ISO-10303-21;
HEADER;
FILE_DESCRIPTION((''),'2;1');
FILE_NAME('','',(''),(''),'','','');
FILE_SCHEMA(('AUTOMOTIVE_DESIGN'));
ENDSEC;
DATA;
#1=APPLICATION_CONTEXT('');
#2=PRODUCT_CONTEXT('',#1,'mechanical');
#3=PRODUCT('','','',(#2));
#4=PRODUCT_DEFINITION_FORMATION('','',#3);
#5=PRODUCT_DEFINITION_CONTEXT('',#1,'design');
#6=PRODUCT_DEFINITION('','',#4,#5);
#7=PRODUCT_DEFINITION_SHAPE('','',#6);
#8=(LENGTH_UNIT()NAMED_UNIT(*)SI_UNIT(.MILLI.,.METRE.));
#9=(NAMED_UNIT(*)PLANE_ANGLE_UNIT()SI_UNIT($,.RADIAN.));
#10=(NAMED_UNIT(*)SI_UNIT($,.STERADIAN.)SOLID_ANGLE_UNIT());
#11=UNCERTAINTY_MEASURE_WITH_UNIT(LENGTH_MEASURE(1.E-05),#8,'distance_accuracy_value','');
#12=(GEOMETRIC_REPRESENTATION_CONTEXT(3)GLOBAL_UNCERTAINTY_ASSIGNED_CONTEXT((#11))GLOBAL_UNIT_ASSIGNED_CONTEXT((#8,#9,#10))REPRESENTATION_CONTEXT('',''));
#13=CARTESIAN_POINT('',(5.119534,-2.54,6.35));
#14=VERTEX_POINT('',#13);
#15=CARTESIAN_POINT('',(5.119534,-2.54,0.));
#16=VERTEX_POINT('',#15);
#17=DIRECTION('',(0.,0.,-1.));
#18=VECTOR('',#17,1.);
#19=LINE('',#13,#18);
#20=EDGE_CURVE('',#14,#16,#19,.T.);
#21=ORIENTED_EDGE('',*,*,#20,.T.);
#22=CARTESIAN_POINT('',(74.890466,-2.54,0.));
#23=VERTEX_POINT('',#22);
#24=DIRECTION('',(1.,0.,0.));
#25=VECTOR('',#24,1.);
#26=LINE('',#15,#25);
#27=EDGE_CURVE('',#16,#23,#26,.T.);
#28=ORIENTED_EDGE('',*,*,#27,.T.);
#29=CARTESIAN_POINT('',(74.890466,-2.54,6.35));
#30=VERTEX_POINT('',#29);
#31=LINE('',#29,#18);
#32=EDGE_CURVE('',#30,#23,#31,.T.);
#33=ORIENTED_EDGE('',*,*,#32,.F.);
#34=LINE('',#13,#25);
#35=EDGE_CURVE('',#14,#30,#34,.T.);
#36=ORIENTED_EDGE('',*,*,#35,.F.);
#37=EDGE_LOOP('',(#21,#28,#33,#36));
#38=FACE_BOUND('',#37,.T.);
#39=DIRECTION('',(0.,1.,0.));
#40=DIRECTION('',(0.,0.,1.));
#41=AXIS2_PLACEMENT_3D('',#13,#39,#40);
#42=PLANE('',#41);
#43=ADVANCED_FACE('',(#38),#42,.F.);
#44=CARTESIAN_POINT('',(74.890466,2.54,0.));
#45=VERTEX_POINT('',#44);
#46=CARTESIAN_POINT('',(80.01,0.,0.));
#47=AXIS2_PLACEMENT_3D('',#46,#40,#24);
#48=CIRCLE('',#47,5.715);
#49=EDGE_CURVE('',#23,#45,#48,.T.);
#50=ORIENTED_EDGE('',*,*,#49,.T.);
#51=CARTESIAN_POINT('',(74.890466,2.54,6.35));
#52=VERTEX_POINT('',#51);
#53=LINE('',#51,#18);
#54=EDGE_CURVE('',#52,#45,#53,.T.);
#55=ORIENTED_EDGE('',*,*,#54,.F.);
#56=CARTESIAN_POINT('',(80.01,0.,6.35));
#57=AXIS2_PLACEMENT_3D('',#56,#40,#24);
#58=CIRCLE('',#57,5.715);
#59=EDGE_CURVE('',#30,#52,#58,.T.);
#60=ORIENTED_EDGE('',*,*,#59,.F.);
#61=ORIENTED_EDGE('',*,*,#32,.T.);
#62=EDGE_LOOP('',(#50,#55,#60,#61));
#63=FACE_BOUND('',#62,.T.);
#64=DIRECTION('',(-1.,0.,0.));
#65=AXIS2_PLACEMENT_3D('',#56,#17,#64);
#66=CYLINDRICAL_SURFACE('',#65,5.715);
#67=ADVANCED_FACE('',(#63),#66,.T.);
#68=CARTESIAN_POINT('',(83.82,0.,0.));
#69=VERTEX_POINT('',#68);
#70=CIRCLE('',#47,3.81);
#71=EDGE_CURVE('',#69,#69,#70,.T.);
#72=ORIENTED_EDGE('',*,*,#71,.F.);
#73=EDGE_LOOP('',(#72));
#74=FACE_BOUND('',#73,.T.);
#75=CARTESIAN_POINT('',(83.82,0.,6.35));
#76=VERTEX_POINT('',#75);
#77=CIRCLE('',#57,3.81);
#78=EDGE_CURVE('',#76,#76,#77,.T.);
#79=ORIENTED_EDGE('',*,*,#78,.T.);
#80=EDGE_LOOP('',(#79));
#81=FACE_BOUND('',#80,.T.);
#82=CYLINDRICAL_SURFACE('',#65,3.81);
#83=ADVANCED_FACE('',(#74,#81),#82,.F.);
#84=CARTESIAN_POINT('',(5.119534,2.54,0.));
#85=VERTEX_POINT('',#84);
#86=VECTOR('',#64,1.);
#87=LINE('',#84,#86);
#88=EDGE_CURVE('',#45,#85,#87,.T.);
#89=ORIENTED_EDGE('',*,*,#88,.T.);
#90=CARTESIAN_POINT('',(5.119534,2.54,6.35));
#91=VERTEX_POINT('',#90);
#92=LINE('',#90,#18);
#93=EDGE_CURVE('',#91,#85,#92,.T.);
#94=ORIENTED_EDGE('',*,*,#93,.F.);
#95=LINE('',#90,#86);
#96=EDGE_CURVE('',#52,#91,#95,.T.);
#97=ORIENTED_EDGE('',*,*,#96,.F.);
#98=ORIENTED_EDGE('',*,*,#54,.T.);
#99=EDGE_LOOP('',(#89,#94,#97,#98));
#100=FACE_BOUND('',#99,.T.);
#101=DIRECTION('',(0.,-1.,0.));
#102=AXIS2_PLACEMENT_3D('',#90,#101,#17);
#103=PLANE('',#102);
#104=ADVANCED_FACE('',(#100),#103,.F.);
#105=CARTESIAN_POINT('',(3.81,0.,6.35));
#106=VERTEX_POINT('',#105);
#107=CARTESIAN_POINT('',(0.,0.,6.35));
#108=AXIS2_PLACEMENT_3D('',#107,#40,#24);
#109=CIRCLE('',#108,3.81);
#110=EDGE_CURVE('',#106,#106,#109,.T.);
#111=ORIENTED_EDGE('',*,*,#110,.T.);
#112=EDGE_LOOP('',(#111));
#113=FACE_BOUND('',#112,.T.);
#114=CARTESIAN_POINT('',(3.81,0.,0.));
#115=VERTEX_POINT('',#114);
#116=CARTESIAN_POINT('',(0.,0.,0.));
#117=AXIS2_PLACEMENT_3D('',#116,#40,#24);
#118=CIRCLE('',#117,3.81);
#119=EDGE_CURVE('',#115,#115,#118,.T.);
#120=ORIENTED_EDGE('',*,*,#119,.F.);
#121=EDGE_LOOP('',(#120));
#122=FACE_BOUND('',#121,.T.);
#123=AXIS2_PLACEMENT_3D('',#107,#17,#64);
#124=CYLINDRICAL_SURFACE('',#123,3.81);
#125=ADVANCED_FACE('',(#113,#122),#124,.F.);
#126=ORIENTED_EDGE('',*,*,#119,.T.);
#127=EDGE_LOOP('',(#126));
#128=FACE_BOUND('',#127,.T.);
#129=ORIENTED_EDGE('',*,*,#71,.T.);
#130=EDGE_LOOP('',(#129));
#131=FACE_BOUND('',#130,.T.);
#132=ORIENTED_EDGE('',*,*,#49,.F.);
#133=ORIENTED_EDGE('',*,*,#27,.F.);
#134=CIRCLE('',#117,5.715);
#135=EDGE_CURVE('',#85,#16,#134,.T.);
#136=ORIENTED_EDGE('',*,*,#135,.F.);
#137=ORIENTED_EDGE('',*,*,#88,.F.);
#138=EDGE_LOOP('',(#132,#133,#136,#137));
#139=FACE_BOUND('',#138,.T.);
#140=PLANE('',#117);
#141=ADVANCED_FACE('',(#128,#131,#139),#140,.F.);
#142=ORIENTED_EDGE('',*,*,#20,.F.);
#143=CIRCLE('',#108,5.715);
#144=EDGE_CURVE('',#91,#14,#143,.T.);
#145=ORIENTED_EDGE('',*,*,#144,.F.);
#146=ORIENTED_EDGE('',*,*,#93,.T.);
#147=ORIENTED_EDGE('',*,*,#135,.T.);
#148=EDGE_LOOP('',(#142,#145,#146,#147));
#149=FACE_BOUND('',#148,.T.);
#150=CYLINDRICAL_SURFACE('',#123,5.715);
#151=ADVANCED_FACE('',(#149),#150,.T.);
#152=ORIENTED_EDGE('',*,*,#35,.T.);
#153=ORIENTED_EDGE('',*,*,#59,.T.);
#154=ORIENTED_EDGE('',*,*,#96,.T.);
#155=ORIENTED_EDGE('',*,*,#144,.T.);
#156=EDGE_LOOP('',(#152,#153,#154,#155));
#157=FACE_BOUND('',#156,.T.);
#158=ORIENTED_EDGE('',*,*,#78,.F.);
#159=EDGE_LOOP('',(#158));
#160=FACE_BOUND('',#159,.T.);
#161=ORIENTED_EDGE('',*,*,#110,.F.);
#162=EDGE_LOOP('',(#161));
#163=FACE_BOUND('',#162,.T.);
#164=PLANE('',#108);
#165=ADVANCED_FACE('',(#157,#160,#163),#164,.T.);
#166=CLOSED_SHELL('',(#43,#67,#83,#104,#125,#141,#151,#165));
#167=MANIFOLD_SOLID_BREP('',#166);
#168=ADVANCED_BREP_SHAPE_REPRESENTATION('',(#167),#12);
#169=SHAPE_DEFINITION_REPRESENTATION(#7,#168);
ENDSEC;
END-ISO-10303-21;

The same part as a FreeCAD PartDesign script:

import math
import FreeCAD as App
import Part
import Sketcher

V = App.Vector
Q = App.Units.Quantity

doc = App.newDocument("Part")
body = doc.addObject("PartDesign::Body", "Body")

# Sketch on XY plane
sketch1 = body.newObject("Sketcher::SketchObject", "Sketch")
sketch1.AttachmentSupport = (doc.getObject("XY_Plane"), [""])
sketch1.MapMode = "FlatFace"
sketch1.addGeometry(Part.LineSegment(V(74.9, 2.5, 0), V(5.1, 2.5, 0)), False)
sketch1.addGeometry(Part.ArcOfCircle(Part.Circle(V(0, 0, 0), V(0, 0, 1), 5.7), math.radians(26), math.radians(334)), False)
sketch1.addGeometry(Part.LineSegment(V(5.1, -2.5, 0), V(74.9, -2.5, 0)), False)
sketch1.addGeometry(Part.ArcOfCircle(Part.Circle(V(80, 0, 0), V(0, 0, 1), 5.7), math.radians(-154), math.radians(154)), False)
sketch1.addGeometry(Part.Circle(V(80, 0, 0), V(0, 0, 1), 3.8), False)
sketch1.addGeometry(Part.Circle(V(0, 0, 0), V(0, 0, 1), 3.8), False)
sketch1.addConstraint(Sketcher.Constraint("Coincident", 0, 2, 1, 1))
sketch1.addConstraint(Sketcher.Constraint("Coincident", 1, 2, 2, 1))
sketch1.addConstraint(Sketcher.Constraint("Coincident", 2, 2, 3, 1))
sketch1.addConstraint(Sketcher.Constraint("Coincident", 3, 2, 0, 1))
sketch1.addConstraint(Sketcher.Constraint("Horizontal", 0))
sketch1.addConstraint(Sketcher.Constraint("Horizontal", 2))
sketch1.addConstraint(Sketcher.Constraint("Coincident", 1, 3, -1, 1))
sketch1.addConstraint(Sketcher.Constraint("Coincident", 5, 3, -1, 1))
sketch1.addConstraint(Sketcher.Constraint("Coincident", 4, 3, 3, 3))
sketch1.addConstraint(Sketcher.Constraint("Equal", 1, 3))
sketch1.addConstraint(Sketcher.Constraint("Equal", 4, 5))
sketch1.addConstraint(Sketcher.Constraint("Symmetric", 2, 2, 3, 2, -1))
sketch1.addConstraint(Sketcher.Constraint("Diameter", 4, Q("0.3 in")))
sketch1.addConstraint(Sketcher.Constraint("Radius", 1, Q("0.225 in")))
sketch1.addConstraint(Sketcher.Constraint("DistanceY", -1, 1, 0, 2, Q("0.1 in")))
sketch1.addConstraint(Sketcher.Constraint("DistanceX", -1, 1, 3, 3, Q("3.15 in")))
pad1 = body.newObject("PartDesign::Pad", "Pad")
pad1.Profile = sketch1
pad1.Length = Q("0.25 in")

doc.recompute()
